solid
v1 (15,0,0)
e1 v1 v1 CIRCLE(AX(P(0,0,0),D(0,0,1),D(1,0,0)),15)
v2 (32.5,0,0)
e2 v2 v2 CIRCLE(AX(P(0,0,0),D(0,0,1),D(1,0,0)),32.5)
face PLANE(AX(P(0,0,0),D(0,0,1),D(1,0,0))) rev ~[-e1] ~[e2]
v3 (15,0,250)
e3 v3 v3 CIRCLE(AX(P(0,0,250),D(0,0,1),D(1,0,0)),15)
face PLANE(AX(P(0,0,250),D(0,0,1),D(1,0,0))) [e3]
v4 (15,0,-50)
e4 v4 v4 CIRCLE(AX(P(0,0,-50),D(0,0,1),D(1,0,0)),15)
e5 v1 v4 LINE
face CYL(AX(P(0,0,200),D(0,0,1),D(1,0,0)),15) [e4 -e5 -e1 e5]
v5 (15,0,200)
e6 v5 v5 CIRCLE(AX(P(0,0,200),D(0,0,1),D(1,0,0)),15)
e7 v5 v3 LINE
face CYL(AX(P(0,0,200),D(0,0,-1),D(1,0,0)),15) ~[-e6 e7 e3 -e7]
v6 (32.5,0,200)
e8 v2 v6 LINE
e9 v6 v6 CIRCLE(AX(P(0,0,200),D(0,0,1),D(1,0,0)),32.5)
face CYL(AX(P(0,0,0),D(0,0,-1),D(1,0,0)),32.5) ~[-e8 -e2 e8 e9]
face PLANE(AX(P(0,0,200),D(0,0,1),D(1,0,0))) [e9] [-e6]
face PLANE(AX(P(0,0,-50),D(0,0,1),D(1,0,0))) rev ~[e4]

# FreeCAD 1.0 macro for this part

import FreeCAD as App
import Part
import Sketcher
from FreeCAD import Vector

doc = App.newDocument("Part")
body = doc.addObject("PartDesign::Body", "Body")

sketch1 = doc.addObject("Sketcher::SketchObject", "Sketch")
body.addObject(sketch1)
sketch1.AttachmentSupport = (doc.XY_Plane, [""])
sketch1.MapMode = "FlatFace"
sketch1.addGeometry(Part.Circle(Vector(0, 0, 0), Vector(0, 0, 1), 32), False)
sketch1.addConstraint([
    Sketcher.Constraint("Coincident", 0, 3, -1, 1),
    Sketcher.Constraint("Diameter", 0, 65.0),
])
pad1 = doc.addObject("PartDesign::Pad", "Pad")
body.addObject(pad1)
pad1.Profile = sketch1
pad1.Length = 200

sketch2 = doc.addObject("Sketcher::SketchObject", "Sketch001")
body.addObject(sketch2)
sketch2.AttachmentSupport = (doc.XY_Plane, [""])
sketch2.MapMode = "FlatFace"
sketch2.AttachmentOffset = App.Placement(Vector(0, 0, 200), App.Rotation())
sketch2.addGeometry(Part.Circle(Vector(0, 0, 0), Vector(0, 0, 1), 15), False)
sketch2.addConstraint([
    Sketcher.Constraint("Coincident", 0, 3, -1, 1),
    Sketcher.Constraint("Diameter", 0, 30.0),
])
pad2 = doc.addObject("PartDesign::Pad", "Pad001")
body.addObject(pad2)
pad2.Profile = sketch2
pad2.Length = 50

sketch3 = doc.addObject("Sketcher::SketchObject", "Sketch002")
body.addObject(sketch3)
sketch3.AttachmentSupport = (doc.XY_Plane, [""])
sketch3.MapMode = "FlatFace"
sketch3.AttachmentOffset = App.Placement(Vector(0, 0, 200), App.Rotation())
sketch3.addGeometry(Part.Circle(Vector(0, 0, 0), Vector(0, 0, 1), 15), False)
sketch3.addConstraint([
    Sketcher.Constraint("Coincident", 0, 3, -1, 1),
    Sketcher.Constraint("Diameter", 0, 30.0),
])
pad3 = doc.addObject("PartDesign::Pad", "Pad002")
body.addObject(pad3)
pad3.Profile = sketch3
pad3.Length = 250
pad3.Reversed = True

doc.recompute()
